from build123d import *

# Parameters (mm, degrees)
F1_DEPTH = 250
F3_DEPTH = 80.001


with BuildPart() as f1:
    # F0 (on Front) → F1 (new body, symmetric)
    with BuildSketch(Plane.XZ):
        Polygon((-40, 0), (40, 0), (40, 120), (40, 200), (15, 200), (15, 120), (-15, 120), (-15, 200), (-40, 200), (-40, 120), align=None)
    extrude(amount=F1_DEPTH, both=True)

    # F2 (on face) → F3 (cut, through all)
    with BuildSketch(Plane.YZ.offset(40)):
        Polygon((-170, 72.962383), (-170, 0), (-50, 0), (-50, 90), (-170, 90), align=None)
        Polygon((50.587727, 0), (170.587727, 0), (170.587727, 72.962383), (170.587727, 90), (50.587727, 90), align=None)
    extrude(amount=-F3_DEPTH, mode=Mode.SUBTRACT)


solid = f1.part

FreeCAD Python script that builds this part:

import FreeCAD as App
import Part
import Sketcher
Q = App.Units.Quantity


def add_polygon(sketch, points):
    """Adds a closed chain of lines whose ends are joined by coincident constraints."""
    first, n = sketch.GeometryCount, len(points)
    for a, b in zip(points, points[1:] + points[:1]):
        sketch.addGeometry(Part.LineSegment(App.Vector(*a, 0), App.Vector(*b, 0)), False)
    for i in range(n):
        sketch.addConstraint(Sketcher.Constraint("Coincident", first + i, 2, first + (i + 1) % n, 1))

doc = App.newDocument("Part")
body = doc.addObject("PartDesign::Body", "Body")

sketch1 = body.newObject("Sketcher::SketchObject", "Sketch")
sketch1.AttachmentSupport = (doc.getObject("XZ_Plane"), [""])
sketch1.MapMode = "FlatFace"
add_polygon(sketch1, [(-40, 0), (40, 0), (40, 200), (15, 200), (15, 120), (-15, 120), (-15, 200), (-40, 200)])
sketch1.addConstraint(Sketcher.Constraint("Horizontal", 0))
sketch1.addConstraint(Sketcher.Constraint("Vertical", 1))
sketch1.addConstraint(Sketcher.Constraint("Horizontal", 2))
sketch1.addConstraint(Sketcher.Constraint("Vertical", 3))
sketch1.addConstraint(Sketcher.Constraint("Horizontal", 4))
sketch1.addConstraint(Sketcher.Constraint("Vertical", 5))
sketch1.addConstraint(Sketcher.Constraint("Horizontal", 6))
sketch1.addConstraint(Sketcher.Constraint("Vertical", 7))
sketch1.addConstraint(Sketcher.Constraint("Symmetric", 0, 2, 7, 2, -1, 1))
sketch1.addConstraint(Sketcher.Constraint("Symmetric", 2, 2, 5, 2, -2))
sketch1.addConstraint(Sketcher.Constraint("Equal", 0, 3))
sketch1.addConstraint(Sketcher.Constraint("DistanceX", 0, 1, 0, 2, Q("80 mm")))
sketch1.addConstraint(Sketcher.Constraint("DistanceX", 2, 2, 2, 1, Q("25 mm")))
sketch1.addConstraint(Sketcher.Constraint("DistanceY", 1, 1, 1, 2, Q("200 mm")))
pad1 = body.newObject("PartDesign::Pad", "Pad")
pad1.Profile = sketch1
pad1.Length = 500
pad1.Midplane = True

sketch2 = body.newObject("Sketcher::SketchObject", "Sketch001")
sketch2.AttachmentSupport = (doc.getObject("YZ_Plane"), [""])
sketch2.MapMode = "FlatFace"
sketch2.AttachmentOffset = App.Placement(App.Vector(0, 0, 40), App.Rotation())
add_polygon(sketch2, [(-170, 0), (-50, 0), (-50, 90), (-170, 90)])
add_polygon(sketch2, [(50.587727, 0), (170.587727, 0), (170.587727, 90), (50.587727, 90)])
sketch2.addConstraint(Sketcher.Constraint("Horizontal", 0))
sketch2.addConstraint(Sketcher.Constraint("Vertical", 1))
sketch2.addConstraint(Sketcher.Constraint("Horizontal", 2))
sketch2.addConstraint(Sketcher.Constraint("Vertical", 3))
sketch2.addConstraint(Sketcher.Constraint("Horizontal", 4))
sketch2.addConstraint(Sketcher.Constraint("Vertical", 5))
sketch2.addConstraint(Sketcher.Constraint("Horizontal", 6))
sketch2.addConstraint(Sketcher.Constraint("Vertical", 7))
sketch2.addConstraint(Sketcher.Constraint("PointOnObject", 0, 2, -1))
sketch2.addConstraint(Sketcher.Constraint("PointOnObject", 4, 2, -1))
sketch2.addConstraint(Sketcher.Constraint("Horizontal", 2, 2, 5, 2))
sketch2.addConstraint(Sketcher.Constraint("Equal", 2, 4))
sketch2.addConstraint(Sketcher.Constraint("DistanceX", 0, 1, 0, 2, Q("120 mm")))
sketch2.addConstraint(Sketcher.Constraint("DistanceY", 1, 1, 1, 2, Q("90 mm")))
sketch2.addConstraint(Sketcher.Constraint("DistanceX", 0, 2, -1, 1, Q("50 mm")))
sketch2.addConstraint(Sketcher.Constraint("DistanceX", -1, 1, 4, 2, Q("170.587727 mm")))
pocket1 = body.newObject("PartDesign::Pocket", "Pocket")
pocket1.Profile = sketch2
pocket1.Type = "ThroughAll"

doc.recompute()
